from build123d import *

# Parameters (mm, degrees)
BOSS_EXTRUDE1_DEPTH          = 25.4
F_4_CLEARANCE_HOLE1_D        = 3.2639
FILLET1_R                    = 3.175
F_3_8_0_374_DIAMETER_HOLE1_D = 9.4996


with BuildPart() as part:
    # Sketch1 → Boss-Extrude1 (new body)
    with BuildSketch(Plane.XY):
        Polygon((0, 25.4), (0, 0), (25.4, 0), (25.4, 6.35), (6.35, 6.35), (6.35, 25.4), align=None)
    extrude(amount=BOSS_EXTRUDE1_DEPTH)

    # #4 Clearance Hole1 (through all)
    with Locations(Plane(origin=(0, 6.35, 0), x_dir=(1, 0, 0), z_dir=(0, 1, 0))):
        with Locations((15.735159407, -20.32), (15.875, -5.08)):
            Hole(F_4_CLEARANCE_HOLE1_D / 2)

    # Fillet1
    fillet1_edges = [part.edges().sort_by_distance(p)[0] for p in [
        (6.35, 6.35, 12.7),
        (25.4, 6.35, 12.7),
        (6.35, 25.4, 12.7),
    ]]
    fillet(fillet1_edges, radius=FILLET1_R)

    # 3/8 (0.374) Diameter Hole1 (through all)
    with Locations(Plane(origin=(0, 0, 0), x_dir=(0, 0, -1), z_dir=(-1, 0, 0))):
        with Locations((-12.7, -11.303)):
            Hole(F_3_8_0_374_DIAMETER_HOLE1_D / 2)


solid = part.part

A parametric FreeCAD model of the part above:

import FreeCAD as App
import Part
import Sketcher

V = App.Vector
Q = App.Units.Quantity


def edges_at(feature, points):
    """Names of the edges that pass closest to the given points."""
    edges = feature.Shape.Edges
    near = lambda p: min(range(len(edges)), key=lambda i: edges[i].distToShape(Part.Vertex(*p))[0])
    return sorted({f"Edge{near(p) + 1}" for p in points})


def add_polygon(sketch, points):
    """Adds a closed chain of lines whose ends are joined by coincident constraints."""
    first, n = sketch.GeometryCount, len(points)
    for a, b in zip(points, points[1:] + points[:1]):
        sketch.addGeometry(Part.LineSegment(App.Vector(*a, 0), App.Vector(*b, 0)), False)
    for i in range(n):
        sketch.addConstraint(Sketcher.Constraint("Coincident", first + i, 2, first + (i + 1) % n, 1))

doc = App.newDocument("Part")
body = doc.addObject("PartDesign::Body", "Body")

# Sketch on XY plane
sketch1 = body.newObject("Sketcher::SketchObject", "Sketch")
sketch1.AttachmentSupport = (doc.getObject("XY_Plane"), [""])
sketch1.MapMode = "FlatFace"
add_polygon(sketch1, [(0, 25), (0, 0), (25, 0), (25, 6), (6, 6), (6, 25)])  # lines 0-5
sketch1.addConstraint([
    Sketcher.Constraint("Vertical", 0),
    Sketcher.Constraint("Horizontal", 1),
    Sketcher.Constraint("Vertical", 2),
    Sketcher.Constraint("Horizontal", 3),
    Sketcher.Constraint("Vertical", 4),
    Sketcher.Constraint("Horizontal", 5),
    Sketcher.Constraint("Coincident", 0, 2, -1, 1),
    Sketcher.Constraint("Equal", 1, 0),
    Sketcher.Constraint("Equal", 5, 2),
    Sketcher.Constraint("DistanceX", 1, 1, 1, 2, Q("1 in")),
    Sketcher.Constraint("DistanceX", 3, 2, 3, 1, Q("0.75 in")),
])
pad1 = body.newObject("PartDesign::Pad", "Pad")
pad1.Profile = sketch1
pad1.Length = Q("1 in")

# Sketch on XZ plane
sketch2 = body.newObject("Sketcher::SketchObject", "Sketch001")
sketch2.AttachmentSupport = (doc.getObject("XZ_Plane"), [""])
sketch2.MapMode = "FlatFace"
sketch2.AttachmentOffset = App.Placement(V(0, 0, -0.25 * 25.4), App.Rotation())
sketch2.addGeometry([
    Part.Circle(V(15.7, 20.3, 0), V(0, 0, 1), 1.6),
    Part.Circle(V(15.9, 5.1, 0), V(0, 0, 1), 1.6),
], False)
sketch2.addConstraint([
    Sketcher.Constraint("Equal", 0, 1),
    Sketcher.Constraint("Diameter", 0, Q("0.1285 in")),
    Sketcher.Constraint("DistanceY", -1, 1, 0, 3, Q("0.8 in")),
    Sketcher.Constraint("DistanceY", -1, 1, 1, 3, Q("0.2 in")),
    Sketcher.Constraint("DistanceX", -1, 1, 1, 3, Q("0.625 in")),
    Sketcher.Constraint("DistanceX", -1, 1, 0, 3, 15.735159),
])
doc.recompute()
hole = body.newObject("PartDesign::Hole", "Hole")
hole.Profile = sketch2
hole.ThreadType = "None"
hole.Diameter = Q("0.1285 in")
hole.DepthType = "ThroughAll"
hole.Reversed = True
doc.recompute()

fillet = body.newObject("PartDesign::Fillet", "Fillet")
fillet.Base = (hole, edges_at(hole, [(6.35, 6.35, 12.7), (25.4, 6.35, 12.7), (6.35, 25.4, 12.7)]))
fillet.Radius = Q("0.125 in")

# Sketch on YZ plane
sketch3 = body.newObject("Sketcher::SketchObject", "Sketch002")
sketch3.AttachmentSupport = (doc.getObject("YZ_Plane"), [""])
sketch3.MapMode = "FlatFace"
sketch3.addGeometry(Part.Circle(V(11.3, 12.7, 0), V(0, 0, 1), 4.7), False)
sketch3.addConstraint([
    Sketcher.Constraint("Diameter", 0, Q("0.374 in")),
    Sketcher.Constraint("DistanceY", -1, 1, 0, 3, Q("0.5 in")),
    Sketcher.Constraint("DistanceX", -1, 1, 0, 3, Q("0.445 in")),
])
doc.recompute()
hole2 = body.newObject("PartDesign::Hole", "Hole001")
hole2.Profile = sketch3
hole2.ThreadType = "None"
hole2.Diameter = Q("0.374 in")
hole2.DepthType = "ThroughAll"
hole2.Reversed = True

doc.recompute()
